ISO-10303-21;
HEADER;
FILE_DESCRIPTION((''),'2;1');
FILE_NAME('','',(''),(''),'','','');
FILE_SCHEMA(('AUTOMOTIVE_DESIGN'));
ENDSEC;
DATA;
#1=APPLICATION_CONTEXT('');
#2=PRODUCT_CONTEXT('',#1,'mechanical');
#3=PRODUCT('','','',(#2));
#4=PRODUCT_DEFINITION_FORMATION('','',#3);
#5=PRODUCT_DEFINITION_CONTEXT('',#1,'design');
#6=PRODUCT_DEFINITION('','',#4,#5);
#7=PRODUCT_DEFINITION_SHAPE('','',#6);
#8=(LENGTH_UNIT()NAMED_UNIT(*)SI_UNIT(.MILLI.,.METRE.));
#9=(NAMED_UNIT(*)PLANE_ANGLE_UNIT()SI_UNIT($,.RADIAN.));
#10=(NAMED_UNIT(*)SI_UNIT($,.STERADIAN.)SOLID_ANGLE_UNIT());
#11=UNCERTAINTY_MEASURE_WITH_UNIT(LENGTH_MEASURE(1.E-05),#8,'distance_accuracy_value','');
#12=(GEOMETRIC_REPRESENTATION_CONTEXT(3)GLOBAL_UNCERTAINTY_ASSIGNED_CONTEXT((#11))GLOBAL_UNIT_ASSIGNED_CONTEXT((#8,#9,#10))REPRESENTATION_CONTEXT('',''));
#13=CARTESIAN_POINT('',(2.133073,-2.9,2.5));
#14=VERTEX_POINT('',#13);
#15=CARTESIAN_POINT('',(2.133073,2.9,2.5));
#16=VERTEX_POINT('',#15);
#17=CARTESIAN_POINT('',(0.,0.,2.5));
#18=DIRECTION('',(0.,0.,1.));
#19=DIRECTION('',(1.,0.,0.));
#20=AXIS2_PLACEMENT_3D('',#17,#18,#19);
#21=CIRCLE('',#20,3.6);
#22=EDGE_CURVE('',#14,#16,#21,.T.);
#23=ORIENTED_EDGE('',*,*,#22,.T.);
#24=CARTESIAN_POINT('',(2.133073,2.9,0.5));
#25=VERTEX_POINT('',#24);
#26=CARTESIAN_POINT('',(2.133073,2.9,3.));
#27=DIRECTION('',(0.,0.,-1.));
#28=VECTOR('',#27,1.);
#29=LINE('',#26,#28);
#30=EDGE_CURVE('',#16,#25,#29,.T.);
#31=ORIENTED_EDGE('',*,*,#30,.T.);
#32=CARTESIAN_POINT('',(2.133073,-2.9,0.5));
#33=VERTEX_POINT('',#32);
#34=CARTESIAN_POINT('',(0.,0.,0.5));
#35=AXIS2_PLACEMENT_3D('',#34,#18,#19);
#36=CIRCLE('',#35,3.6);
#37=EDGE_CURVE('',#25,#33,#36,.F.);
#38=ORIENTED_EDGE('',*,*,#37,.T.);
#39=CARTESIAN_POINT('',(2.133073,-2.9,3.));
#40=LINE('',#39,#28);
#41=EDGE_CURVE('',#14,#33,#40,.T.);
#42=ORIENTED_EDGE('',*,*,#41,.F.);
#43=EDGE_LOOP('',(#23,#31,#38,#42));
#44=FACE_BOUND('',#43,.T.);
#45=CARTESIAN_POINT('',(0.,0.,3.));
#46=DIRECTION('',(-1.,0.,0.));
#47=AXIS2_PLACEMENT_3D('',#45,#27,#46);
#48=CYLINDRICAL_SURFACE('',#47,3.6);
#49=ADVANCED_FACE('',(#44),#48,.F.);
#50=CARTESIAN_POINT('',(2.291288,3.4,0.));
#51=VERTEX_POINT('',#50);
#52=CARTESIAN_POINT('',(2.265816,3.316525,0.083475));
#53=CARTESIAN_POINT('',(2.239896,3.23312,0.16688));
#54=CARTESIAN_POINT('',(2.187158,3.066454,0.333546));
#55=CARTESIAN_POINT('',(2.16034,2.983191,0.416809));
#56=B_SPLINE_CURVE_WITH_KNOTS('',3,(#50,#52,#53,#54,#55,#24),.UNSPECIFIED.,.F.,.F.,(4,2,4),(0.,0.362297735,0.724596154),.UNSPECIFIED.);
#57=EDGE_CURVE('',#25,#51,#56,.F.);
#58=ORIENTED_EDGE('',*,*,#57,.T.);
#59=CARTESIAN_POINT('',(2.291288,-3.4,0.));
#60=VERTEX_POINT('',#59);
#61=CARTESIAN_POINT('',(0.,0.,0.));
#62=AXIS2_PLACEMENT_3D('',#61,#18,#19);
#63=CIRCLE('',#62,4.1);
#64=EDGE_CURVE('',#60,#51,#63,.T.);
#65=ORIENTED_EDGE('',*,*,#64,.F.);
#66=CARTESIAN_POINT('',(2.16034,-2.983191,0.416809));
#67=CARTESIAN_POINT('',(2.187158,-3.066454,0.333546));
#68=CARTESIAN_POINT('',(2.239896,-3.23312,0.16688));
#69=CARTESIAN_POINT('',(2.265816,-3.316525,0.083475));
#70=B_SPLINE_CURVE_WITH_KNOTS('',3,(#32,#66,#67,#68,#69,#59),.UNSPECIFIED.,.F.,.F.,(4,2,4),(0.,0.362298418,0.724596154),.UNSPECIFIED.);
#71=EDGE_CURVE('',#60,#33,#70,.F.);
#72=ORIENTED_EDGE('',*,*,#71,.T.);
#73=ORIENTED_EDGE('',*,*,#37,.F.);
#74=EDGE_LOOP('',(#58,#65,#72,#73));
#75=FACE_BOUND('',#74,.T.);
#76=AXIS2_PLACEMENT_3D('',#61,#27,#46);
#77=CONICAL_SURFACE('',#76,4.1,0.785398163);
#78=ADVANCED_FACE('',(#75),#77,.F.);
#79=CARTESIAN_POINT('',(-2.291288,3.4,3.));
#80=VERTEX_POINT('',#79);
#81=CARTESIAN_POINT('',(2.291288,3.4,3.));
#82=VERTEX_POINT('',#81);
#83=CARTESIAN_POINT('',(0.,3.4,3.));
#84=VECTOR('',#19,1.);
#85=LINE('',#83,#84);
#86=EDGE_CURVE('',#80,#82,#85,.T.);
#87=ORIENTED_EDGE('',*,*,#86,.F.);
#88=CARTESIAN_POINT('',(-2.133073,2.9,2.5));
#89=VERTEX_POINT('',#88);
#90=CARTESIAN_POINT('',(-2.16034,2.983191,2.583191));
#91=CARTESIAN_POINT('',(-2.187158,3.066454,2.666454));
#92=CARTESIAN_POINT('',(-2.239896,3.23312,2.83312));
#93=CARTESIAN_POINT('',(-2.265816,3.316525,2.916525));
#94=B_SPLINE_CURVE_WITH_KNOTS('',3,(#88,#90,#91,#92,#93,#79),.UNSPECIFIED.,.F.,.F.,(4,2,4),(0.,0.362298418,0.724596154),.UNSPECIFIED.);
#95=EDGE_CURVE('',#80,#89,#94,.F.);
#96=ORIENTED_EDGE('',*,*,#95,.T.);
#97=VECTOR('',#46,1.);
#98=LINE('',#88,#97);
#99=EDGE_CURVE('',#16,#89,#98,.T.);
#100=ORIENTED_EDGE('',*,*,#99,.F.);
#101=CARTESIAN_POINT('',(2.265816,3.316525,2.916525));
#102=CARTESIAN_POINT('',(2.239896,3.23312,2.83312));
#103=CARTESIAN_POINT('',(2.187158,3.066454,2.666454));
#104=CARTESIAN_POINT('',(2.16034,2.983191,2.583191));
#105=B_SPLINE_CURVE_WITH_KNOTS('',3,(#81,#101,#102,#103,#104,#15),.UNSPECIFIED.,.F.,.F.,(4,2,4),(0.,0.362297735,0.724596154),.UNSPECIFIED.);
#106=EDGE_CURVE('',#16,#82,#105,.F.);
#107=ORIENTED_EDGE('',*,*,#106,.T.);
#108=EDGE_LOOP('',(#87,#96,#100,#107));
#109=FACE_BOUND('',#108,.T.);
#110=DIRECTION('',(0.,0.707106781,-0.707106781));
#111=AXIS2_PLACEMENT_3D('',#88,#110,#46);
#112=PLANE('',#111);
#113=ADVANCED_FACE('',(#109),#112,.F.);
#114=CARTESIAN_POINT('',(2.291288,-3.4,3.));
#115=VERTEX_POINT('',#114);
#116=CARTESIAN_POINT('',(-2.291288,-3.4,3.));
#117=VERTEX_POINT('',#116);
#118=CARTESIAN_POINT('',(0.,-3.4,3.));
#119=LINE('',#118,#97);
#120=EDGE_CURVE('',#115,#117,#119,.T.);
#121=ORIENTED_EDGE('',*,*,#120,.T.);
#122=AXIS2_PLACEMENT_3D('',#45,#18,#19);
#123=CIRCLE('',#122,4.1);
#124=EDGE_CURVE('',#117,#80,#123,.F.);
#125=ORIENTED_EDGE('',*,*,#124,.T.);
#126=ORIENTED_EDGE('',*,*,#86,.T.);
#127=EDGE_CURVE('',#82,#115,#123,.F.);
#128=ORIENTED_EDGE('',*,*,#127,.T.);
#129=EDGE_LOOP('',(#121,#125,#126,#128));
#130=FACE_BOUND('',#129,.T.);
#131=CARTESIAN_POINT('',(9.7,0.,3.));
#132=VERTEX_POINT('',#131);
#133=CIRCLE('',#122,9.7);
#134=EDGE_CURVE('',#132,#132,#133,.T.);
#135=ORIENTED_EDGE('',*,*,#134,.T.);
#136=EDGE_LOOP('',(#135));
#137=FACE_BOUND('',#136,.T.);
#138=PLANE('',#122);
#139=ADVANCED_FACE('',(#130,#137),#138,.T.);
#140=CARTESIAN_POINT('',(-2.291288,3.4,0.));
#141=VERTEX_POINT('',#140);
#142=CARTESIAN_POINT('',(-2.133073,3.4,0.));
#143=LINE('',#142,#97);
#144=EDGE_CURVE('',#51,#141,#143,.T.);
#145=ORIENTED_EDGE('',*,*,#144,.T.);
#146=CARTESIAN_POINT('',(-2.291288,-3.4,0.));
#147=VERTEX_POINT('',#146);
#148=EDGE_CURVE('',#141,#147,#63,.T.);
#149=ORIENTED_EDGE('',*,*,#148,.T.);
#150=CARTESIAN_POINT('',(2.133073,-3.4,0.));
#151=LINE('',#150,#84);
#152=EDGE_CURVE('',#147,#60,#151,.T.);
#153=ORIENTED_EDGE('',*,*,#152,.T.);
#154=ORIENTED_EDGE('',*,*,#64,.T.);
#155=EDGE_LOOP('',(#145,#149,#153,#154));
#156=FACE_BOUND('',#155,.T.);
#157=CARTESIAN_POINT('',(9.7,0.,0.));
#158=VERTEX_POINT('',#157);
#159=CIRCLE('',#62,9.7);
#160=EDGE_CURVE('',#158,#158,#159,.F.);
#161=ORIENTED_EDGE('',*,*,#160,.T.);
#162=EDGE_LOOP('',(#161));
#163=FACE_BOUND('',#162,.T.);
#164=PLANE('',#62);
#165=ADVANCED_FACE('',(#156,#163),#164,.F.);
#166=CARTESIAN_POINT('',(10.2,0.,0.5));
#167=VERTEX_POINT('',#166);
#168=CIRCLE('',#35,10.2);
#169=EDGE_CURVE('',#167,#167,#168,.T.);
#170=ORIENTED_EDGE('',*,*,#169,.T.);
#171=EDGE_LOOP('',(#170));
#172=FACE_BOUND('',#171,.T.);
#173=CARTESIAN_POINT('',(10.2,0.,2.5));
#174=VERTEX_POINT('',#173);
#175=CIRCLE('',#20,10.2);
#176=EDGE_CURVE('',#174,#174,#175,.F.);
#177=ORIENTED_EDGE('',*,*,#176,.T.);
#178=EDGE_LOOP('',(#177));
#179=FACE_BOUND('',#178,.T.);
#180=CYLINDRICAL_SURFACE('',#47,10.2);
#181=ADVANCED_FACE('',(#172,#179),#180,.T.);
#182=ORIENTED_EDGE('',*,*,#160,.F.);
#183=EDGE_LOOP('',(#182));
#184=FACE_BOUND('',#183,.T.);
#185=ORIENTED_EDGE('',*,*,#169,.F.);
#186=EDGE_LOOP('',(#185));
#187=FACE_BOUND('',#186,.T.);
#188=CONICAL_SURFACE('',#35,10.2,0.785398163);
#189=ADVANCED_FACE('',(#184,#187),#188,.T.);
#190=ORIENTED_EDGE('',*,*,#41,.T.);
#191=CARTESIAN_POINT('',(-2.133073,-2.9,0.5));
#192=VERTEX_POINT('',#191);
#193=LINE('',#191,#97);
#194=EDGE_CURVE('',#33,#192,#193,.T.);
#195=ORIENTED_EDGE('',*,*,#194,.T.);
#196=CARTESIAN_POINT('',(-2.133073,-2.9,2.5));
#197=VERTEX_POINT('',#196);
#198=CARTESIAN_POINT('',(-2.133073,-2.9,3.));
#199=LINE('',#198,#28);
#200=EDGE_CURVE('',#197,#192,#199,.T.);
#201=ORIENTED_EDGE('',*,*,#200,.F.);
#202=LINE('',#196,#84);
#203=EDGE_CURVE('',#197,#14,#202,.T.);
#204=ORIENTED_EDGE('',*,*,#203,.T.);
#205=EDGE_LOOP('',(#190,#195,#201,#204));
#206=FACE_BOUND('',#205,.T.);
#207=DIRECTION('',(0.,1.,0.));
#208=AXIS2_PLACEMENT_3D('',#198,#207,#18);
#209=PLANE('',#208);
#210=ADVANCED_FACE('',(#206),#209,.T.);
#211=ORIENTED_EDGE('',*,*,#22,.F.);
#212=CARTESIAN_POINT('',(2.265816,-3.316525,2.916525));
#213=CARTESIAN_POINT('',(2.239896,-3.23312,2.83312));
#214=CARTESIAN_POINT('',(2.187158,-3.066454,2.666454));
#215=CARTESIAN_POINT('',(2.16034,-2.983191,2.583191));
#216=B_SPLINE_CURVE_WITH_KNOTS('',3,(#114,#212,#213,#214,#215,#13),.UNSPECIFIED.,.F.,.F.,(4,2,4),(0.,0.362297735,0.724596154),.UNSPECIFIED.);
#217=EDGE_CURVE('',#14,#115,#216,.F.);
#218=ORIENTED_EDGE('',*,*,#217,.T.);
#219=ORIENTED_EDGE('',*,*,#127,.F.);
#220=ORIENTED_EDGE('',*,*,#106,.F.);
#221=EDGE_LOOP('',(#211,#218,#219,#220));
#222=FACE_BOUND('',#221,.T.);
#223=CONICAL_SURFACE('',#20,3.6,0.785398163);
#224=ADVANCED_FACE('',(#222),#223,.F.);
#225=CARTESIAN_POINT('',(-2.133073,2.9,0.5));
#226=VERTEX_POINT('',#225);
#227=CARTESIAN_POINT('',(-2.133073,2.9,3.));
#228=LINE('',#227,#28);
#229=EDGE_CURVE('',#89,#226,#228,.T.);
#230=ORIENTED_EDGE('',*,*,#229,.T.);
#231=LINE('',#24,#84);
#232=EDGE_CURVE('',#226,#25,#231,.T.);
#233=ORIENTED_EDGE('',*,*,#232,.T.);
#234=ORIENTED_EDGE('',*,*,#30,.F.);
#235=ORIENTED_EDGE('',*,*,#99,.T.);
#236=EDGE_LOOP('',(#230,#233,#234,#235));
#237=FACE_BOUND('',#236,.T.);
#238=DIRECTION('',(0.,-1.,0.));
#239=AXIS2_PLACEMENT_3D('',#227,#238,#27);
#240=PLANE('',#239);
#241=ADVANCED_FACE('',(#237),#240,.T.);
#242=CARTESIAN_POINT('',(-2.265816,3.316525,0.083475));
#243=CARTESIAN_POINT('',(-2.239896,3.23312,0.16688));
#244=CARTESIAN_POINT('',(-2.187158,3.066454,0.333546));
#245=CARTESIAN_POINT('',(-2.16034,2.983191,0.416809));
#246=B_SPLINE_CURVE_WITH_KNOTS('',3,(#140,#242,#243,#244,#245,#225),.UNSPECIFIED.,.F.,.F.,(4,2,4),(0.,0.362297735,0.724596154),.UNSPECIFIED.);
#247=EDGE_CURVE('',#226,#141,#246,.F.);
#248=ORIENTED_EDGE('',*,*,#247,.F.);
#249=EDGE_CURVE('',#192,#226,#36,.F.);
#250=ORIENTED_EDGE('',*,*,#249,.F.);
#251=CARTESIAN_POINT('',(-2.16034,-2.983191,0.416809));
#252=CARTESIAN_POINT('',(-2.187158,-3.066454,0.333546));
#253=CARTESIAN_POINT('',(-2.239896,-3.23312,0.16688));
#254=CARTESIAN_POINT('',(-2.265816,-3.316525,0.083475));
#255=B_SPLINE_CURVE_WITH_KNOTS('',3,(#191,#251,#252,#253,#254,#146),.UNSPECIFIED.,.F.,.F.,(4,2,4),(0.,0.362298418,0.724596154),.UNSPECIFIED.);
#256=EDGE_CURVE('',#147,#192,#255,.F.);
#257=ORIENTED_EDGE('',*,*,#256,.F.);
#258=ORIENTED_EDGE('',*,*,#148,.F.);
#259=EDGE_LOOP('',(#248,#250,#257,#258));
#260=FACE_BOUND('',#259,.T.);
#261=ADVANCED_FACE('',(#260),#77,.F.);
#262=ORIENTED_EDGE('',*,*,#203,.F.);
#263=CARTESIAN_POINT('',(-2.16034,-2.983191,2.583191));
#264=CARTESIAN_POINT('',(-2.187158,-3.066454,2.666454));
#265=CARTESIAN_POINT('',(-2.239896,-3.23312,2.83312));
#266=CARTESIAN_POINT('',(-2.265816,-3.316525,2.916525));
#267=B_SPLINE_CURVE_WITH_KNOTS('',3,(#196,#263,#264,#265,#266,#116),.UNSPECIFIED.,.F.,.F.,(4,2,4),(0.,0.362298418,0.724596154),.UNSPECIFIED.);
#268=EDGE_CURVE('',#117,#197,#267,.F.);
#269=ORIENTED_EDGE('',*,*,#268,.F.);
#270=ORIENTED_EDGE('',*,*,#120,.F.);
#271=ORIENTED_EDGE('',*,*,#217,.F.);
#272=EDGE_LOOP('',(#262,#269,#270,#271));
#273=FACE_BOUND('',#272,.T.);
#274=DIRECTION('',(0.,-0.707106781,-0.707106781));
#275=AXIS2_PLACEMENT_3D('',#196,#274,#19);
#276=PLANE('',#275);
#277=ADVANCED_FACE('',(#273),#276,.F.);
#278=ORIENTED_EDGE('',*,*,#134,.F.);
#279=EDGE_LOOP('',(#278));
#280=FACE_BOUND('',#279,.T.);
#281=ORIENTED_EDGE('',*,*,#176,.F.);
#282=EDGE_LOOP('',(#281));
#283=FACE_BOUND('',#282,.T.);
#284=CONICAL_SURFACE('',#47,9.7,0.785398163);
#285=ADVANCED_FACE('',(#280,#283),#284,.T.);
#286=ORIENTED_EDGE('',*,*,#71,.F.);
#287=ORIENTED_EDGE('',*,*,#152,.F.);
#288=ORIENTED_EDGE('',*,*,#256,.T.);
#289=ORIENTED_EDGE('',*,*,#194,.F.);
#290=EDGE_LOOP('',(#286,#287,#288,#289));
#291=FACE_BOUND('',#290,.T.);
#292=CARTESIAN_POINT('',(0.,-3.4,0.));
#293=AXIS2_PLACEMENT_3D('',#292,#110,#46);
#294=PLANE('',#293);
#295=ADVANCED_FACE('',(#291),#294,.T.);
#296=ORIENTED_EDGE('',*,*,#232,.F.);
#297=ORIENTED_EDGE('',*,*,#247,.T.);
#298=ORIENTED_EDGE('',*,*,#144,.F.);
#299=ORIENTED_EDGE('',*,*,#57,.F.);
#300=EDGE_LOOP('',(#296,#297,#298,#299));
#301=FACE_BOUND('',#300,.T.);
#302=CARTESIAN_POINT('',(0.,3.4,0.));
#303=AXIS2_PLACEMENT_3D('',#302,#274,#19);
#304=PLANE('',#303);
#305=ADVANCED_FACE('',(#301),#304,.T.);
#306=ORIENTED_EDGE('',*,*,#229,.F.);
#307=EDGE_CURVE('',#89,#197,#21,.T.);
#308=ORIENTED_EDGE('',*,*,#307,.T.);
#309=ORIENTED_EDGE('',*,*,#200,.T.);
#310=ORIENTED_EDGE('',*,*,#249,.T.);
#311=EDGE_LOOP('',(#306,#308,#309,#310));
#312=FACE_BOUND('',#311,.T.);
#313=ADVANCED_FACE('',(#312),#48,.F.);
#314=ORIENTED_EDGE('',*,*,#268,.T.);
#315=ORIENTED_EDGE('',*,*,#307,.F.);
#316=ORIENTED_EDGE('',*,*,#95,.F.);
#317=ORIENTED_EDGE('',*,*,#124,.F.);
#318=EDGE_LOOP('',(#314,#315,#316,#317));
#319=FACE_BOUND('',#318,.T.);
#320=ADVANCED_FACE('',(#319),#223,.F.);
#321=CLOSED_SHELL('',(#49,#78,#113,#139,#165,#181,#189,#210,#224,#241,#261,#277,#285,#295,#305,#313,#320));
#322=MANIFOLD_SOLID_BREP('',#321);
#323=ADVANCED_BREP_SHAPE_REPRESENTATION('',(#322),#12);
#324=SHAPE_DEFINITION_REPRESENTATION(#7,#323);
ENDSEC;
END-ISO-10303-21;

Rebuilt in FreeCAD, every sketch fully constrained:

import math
import FreeCAD as App
import Part
import Sketcher
from FreeCAD import Vector


def edges_at(feature, points):
    """Names of the edges that pass closest to the given points."""
    edges = feature.Shape.Edges
    near = lambda p: min(range(len(edges)), key=lambda i: edges[i].distToShape(Part.Vertex(*p))[0])
    return sorted({f"Edge{near(p) + 1}" for p in points})

doc = App.newDocument("Part")
params = doc.addObject("Spreadsheet::Sheet", "Params")
for row, (alias, value) in enumerate([
    ("sketch1_diameter", "20.4 mm"),
    ("sketch1_radius", "3.6 mm"),
    ("pad1_length", "3 mm"),
    ("chamfer_size", "0.5 mm"),
], start=1):
    params.set(f"A{row}", alias)
    params.set(f"B{row}", "=" + value)
    params.setAlias(f"B{row}", alias)

body = doc.addObject("PartDesign::Body", "Body")

# Sketch on XY plane
sketch1 = body.newObject("Sketcher::SketchObject", "Sketch")
sketch1.AttachmentSupport = (doc.getObject("XY_Plane"), [""])
sketch1.MapMode = "FlatFace"
sketch1.addGeometry([
    Part.Circle(Vector(0, 0, 0), Vector(0, 0, 1), 10.2),  # 0
    Part.ArcOfCircle(Part.Circle(Vector(0, 0, 0), Vector(0, 0, 1), 3.6), math.radians(126), math.radians(234)),  # 1
    Part.LineSegment(Vector(-2.1, 2.9, 0), Vector(2.1, 2.9, 0)),  # 2
    Part.ArcOfCircle(Part.Circle(Vector(0, 0, 0), Vector(0, 0, 1), 3.6), math.radians(-54), math.radians(54)),  # 3
    Part.LineSegment(Vector(2.1, -2.9, 0), Vector(-2.1, -2.9, 0)),  # 4
], False)
sketch1.addConstraint([
    Sketcher.Constraint("Coincident", 1, 1, 2, 1),
    Sketcher.Constraint("Coincident", 2, 2, 3, 2),
    Sketcher.Constraint("Coincident", 3, 1, 4, 1),
    Sketcher.Constraint("Coincident", 4, 2, 1, 2),
    Sketcher.Constraint("Horizontal", 2),
    Sketcher.Constraint("Horizontal", 4),
    Sketcher.Constraint("Coincident", 0, 3, -1, 1),
    Sketcher.Constraint("Coincident", 1, 3, -1, 1),
    Sketcher.Constraint("Coincident", 3, 3, -1, 1),
    Sketcher.Constraint("Equal", 1, 3),
    Sketcher.Constraint("Vertical", 2, 2, 3, 1),
    Sketcher.Constraint("Diameter", 0, 20.4),
    Sketcher.Constraint("Radius", 1, 3.6),
    Sketcher.Constraint("DistanceY", -1, 1, 1, 1, 2.9),
])
sketch1.setExpression("Constraints[11]", "Params.sketch1_diameter")
sketch1.setExpression("Constraints[12]", "Params.sketch1_radius")
pad1 = body.newObject("PartDesign::Pad", "Pad")
pad1.Profile = sketch1
pad1.setExpression("Length", "Params.pad1_length")
doc.recompute()

chamfer = body.newObject("PartDesign::Chamfer", "Chamfer")
chamfer.Base = (pad1, edges_at(pad1, [
    (3.6, 0, 3),
    (0, 2.9, 3),
    (-10.2, 0, 0),
    (-10.2, 0, 3),
    (-3.6, 0, 0),
    (0, -2.9, 0),
    (3.6, 0, 0),
    (0, 2.9, 0),
    (-3.6, 0, 3),
    (0, -2.9, 3),
]))
chamfer.setExpression("Size", "Params.chamfer_size")

doc.recompute()
